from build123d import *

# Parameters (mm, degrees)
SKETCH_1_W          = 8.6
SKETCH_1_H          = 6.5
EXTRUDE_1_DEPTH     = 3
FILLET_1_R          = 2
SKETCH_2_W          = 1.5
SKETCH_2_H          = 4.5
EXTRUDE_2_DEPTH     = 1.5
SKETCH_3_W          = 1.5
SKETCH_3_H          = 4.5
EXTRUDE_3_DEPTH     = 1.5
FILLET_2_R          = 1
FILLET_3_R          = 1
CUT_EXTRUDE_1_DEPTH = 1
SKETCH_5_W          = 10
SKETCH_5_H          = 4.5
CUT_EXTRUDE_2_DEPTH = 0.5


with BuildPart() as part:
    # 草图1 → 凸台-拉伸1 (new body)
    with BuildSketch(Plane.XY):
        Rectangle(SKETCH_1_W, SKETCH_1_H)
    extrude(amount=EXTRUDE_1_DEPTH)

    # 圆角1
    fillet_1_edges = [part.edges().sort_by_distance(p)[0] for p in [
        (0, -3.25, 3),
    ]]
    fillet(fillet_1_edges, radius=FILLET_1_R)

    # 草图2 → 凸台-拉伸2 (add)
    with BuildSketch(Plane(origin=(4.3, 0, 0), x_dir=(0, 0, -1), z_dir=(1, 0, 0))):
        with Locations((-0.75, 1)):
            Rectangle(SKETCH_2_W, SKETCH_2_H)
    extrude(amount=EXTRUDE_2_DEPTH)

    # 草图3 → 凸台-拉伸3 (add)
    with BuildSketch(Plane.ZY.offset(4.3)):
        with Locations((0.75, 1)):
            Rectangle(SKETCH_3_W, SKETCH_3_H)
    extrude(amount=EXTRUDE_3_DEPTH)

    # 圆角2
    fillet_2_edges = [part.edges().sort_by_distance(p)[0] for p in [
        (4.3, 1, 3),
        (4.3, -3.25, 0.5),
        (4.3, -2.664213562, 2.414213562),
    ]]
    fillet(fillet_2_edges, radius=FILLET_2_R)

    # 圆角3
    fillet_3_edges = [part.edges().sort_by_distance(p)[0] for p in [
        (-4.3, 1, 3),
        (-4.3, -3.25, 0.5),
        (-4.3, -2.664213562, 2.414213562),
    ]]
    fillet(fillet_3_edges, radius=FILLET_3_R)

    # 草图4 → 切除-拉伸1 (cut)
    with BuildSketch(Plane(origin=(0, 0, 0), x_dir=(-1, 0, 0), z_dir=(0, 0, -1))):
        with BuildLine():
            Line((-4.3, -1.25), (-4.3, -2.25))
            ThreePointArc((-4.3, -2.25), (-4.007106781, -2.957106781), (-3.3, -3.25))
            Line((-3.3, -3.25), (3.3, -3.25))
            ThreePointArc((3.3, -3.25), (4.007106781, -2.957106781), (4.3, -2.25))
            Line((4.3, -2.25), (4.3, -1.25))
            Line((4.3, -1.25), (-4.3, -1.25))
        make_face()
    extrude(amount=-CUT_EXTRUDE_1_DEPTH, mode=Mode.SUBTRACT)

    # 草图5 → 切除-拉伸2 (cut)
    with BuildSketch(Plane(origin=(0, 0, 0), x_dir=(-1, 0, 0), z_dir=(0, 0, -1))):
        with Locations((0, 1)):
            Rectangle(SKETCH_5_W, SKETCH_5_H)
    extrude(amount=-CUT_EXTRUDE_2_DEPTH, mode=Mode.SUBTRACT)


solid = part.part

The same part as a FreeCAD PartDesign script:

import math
import FreeCAD as App
import Part
import Sketcher


def edges_at(feature, points):
    """Names of the edges that pass closest to the given points."""
    edges = feature.Shape.Edges
    near = lambda p: min(range(len(edges)), key=lambda i: edges[i].distToShape(Part.Vertex(*p))[0])
    return sorted({f"Edge{near(p) + 1}" for p in points})


def add_polygon(sketch, points):
    """Adds a closed chain of lines whose ends are joined by coincident constraints."""
    first, n = sketch.GeometryCount, len(points)
    for a, b in zip(points, points[1:] + points[:1]):
        sketch.addGeometry(Part.LineSegment(App.Vector(*a, 0), App.Vector(*b, 0)), False)
    for i in range(n):
        sketch.addConstraint(Sketcher.Constraint("Coincident", first + i, 2, first + (i + 1) % n, 1))

doc = App.newDocument("Part")
body = doc.addObject("PartDesign::Body", "Body")

sketch1 = doc.addObject("Sketcher::SketchObject", "Sketch")
body.addObject(sketch1)
sketch1.AttachmentSupport = (doc.XY_Plane, [""])
sketch1.MapMode = "FlatFace"
add_polygon(sketch1, [(-4, 3), (-4, -3), (4, -3), (4, 3)])
sketch1.addConstraint([
    Sketcher.Constraint("Vertical", 0),
    Sketcher.Constraint("Horizontal", 1),
    Sketcher.Constraint("Vertical", 2),
    Sketcher.Constraint("Horizontal", 3),
    Sketcher.Constraint("Symmetric", 0, 2, 2, 2, -1, 1),
    Sketcher.Constraint("DistanceX", 1, 1, 1, 2, 8.6),
    Sketcher.Constraint("DistanceY", 0, 2, 0, 1, 6.5),
])
pad1 = doc.addObject("PartDesign::Pad", "Pad")
body.addObject(pad1)
pad1.Profile = sketch1
pad1.Length = 3
doc.recompute()

fillet = doc.addObject("PartDesign::Fillet", "Fillet")
body.addObject(fillet)
fillet.Base = (pad1, edges_at(pad1, [(0, -3.25, 3)]))
fillet.Radius = 2

sketch2 = doc.addObject("Sketcher::SketchObject", "Sketch001")
body.addObject(sketch2)
sketch2.AttachmentSupport = (doc.YZ_Plane, [""])
sketch2.MapMode = "FlatFace"
sketch2.AttachmentOffset = App.Placement(App.Vector(0, 0, 4.3), App.Rotation())
add_polygon(sketch2, [(3.2, 1.5), (-1.2, 1.5), (-1.2, 0), (3.2, 0)])
sketch2.addConstraint([
    Sketcher.Constraint("Horizontal", 0),
    Sketcher.Constraint("Vertical", 1),
    Sketcher.Constraint("Horizontal", 2),
    Sketcher.Constraint("Vertical", 3),
    Sketcher.Constraint("PointOnObject", 1, 2, -1),
    Sketcher.Constraint("DistanceX", 0, 2, 0, 1, 4.5),
    Sketcher.Constraint("DistanceY", 1, 2, 1, 1, 1.5),
    Sketcher.Constraint("DistanceX", 0, 2, -1, 1, 1.25),
])
pad2 = doc.addObject("PartDesign::Pad", "Pad001")
body.addObject(pad2)
pad2.Profile = sketch2
pad2.Length = 1.5

sketch3 = doc.addObject("Sketcher::SketchObject", "Sketch002")
body.addObject(sketch3)
sketch3.AttachmentSupport = (doc.YZ_Plane, [""])
sketch3.MapMode = "FlatFace"
sketch3.AttachmentOffset = App.Placement(App.Vector(0, 0, -4.3), App.Rotation())
add_polygon(sketch3, [(3.2, 0), (-1.2, 0), (-1.2, 1.5), (3.2, 1.5)])
sketch3.addConstraint([
    Sketcher.Constraint("Horizontal", 0),
    Sketcher.Constraint("Vertical", 1),
    Sketcher.Constraint("Horizontal", 2),
    Sketcher.Constraint("Vertical", 3),
    Sketcher.Constraint("PointOnObject", 0, 2, -1),
    Sketcher.Constraint("DistanceX", 0, 2, 0, 1, 4.5),
    Sketcher.Constraint("DistanceY", 1, 1, 1, 2, 1.5),
    Sketcher.Constraint("DistanceX", 0, 2, -1, 1, 1.25),
])
pad3 = doc.addObject("PartDesign::Pad", "Pad002")
body.addObject(pad3)
pad3.Profile = sketch3
pad3.Length = 1.5
pad3.Reversed = True
doc.recompute()

fillet2 = doc.addObject("PartDesign::Fillet", "Fillet001")
body.addObject(fillet2)
fillet2.Base = (pad3, edges_at(pad3, [(4.3, 1, 3), (4.3, -3.25, 0.5), (4.3, -2.664, 2.414)]))
fillet2.Radius = 1
doc.recompute()

fillet3 = doc.addObject("PartDesign::Fillet", "Fillet002")
body.addObject(fillet3)
fillet3.Base = (fillet2, edges_at(fillet2, [(-4.3, 1, 3), (-4.3, -3.25, 0.5), (-4.3, -2.664, 2.414)]))
fillet3.Radius = 1

sketch4 = doc.addObject("Sketcher::SketchObject", "Sketch003")
body.addObject(sketch4)
sketch4.AttachmentSupport = (doc.XY_Plane, [""])
sketch4.MapMode = "FlatFace"
sketch4.addGeometry([
    Part.LineSegment(App.Vector(4.3, -1.2, 0), App.Vector(4.3, -2.2, 0)),
    Part.ArcOfCircle(Part.Circle(App.Vector(3.3, -2.2, 0), App.Vector(0, 0, 1), 1), math.radians(-90), math.radians(0)),
    Part.LineSegment(App.Vector(3.3, -3.2, 0), App.Vector(-3.3, -3.2, 0)),
    Part.ArcOfCircle(Part.Circle(App.Vector(-3.3, -2.2, 0), App.Vector(0, 0, 1), 1), math.radians(-180), math.radians(-90)),
    Part.LineSegment(App.Vector(-4.3, -2.2, 0), App.Vector(-4.3, -1.2, 0)),
    Part.LineSegment(App.Vector(-4.3, -1.2, 0), App.Vector(4.3, -1.2, 0)),
], False)
sketch4.addConstraint([
    Sketcher.Constraint("Tangent", 0, 2, 1, 2),
    Sketcher.Constraint("Tangent", 1, 1, 2, 1),
    Sketcher.Constraint("Tangent", 2, 2, 3, 2),
    Sketcher.Constraint("Tangent", 3, 1, 4, 1),
    Sketcher.Constraint("Coincident", 4, 2, 5, 1),
    Sketcher.Constraint("Coincident", 5, 2, 0, 1),
    Sketcher.Constraint("Vertical", 0),
    Sketcher.Constraint("Horizontal", 2),
    Sketcher.Constraint("Vertical", 4),
    Sketcher.Constraint("Horizontal", 5),
    Sketcher.Constraint("Equal", 1, 3),
    Sketcher.Constraint("Radius", 1, 1.0),
    Sketcher.Constraint("DistanceY", 0, 2, 0, 1, 1.0),
    Sketcher.Constraint("DistanceX", 2, 2, 2, 1, 6.6),
    Sketcher.Constraint("DistanceX", -1, 1, 1, 3, 3.3),
    Sketcher.Constraint("DistanceY", 1, 3, -1, 1, 2.25),
])
pocket1 = doc.addObject("PartDesign::Pocket", "Pocket")
body.addObject(pocket1)
pocket1.Profile = sketch4
pocket1.Length = 1
pocket1.Reversed = True

sketch5 = doc.addObject("Sketcher::SketchObject", "Sketch004")
body.addObject(sketch5)
sketch5.AttachmentSupport = (doc.XY_Plane, [""])
sketch5.MapMode = "FlatFace"
add_polygon(sketch5, [(5, 3.2), (5, -1.2), (-5, -1.2), (-5, 3.2)])
sketch5.addConstraint([
    Sketcher.Constraint("Vertical", 0),
    Sketcher.Constraint("Horizontal", 1),
    Sketcher.Constraint("Vertical", 2),
    Sketcher.Constraint("Horizontal", 3),
    Sketcher.Constraint("DistanceX", 1, 2, 1, 1, 10.0),
    Sketcher.Constraint("DistanceY", 0, 2, 0, 1, 4.5),
    Sketcher.Constraint("DistanceX", -1, 1, 0, 2, 5.0),
    Sketcher.Constraint("DistanceY", 0, 2, -1, 1, 1.25),
])
pocket2 = doc.addObject("PartDesign::Pocket", "Pocket001")
body.addObject(pocket2)
pocket2.Profile = sketch5
pocket2.Length = 0.5
pocket2.Reversed = True

doc.recompute()
